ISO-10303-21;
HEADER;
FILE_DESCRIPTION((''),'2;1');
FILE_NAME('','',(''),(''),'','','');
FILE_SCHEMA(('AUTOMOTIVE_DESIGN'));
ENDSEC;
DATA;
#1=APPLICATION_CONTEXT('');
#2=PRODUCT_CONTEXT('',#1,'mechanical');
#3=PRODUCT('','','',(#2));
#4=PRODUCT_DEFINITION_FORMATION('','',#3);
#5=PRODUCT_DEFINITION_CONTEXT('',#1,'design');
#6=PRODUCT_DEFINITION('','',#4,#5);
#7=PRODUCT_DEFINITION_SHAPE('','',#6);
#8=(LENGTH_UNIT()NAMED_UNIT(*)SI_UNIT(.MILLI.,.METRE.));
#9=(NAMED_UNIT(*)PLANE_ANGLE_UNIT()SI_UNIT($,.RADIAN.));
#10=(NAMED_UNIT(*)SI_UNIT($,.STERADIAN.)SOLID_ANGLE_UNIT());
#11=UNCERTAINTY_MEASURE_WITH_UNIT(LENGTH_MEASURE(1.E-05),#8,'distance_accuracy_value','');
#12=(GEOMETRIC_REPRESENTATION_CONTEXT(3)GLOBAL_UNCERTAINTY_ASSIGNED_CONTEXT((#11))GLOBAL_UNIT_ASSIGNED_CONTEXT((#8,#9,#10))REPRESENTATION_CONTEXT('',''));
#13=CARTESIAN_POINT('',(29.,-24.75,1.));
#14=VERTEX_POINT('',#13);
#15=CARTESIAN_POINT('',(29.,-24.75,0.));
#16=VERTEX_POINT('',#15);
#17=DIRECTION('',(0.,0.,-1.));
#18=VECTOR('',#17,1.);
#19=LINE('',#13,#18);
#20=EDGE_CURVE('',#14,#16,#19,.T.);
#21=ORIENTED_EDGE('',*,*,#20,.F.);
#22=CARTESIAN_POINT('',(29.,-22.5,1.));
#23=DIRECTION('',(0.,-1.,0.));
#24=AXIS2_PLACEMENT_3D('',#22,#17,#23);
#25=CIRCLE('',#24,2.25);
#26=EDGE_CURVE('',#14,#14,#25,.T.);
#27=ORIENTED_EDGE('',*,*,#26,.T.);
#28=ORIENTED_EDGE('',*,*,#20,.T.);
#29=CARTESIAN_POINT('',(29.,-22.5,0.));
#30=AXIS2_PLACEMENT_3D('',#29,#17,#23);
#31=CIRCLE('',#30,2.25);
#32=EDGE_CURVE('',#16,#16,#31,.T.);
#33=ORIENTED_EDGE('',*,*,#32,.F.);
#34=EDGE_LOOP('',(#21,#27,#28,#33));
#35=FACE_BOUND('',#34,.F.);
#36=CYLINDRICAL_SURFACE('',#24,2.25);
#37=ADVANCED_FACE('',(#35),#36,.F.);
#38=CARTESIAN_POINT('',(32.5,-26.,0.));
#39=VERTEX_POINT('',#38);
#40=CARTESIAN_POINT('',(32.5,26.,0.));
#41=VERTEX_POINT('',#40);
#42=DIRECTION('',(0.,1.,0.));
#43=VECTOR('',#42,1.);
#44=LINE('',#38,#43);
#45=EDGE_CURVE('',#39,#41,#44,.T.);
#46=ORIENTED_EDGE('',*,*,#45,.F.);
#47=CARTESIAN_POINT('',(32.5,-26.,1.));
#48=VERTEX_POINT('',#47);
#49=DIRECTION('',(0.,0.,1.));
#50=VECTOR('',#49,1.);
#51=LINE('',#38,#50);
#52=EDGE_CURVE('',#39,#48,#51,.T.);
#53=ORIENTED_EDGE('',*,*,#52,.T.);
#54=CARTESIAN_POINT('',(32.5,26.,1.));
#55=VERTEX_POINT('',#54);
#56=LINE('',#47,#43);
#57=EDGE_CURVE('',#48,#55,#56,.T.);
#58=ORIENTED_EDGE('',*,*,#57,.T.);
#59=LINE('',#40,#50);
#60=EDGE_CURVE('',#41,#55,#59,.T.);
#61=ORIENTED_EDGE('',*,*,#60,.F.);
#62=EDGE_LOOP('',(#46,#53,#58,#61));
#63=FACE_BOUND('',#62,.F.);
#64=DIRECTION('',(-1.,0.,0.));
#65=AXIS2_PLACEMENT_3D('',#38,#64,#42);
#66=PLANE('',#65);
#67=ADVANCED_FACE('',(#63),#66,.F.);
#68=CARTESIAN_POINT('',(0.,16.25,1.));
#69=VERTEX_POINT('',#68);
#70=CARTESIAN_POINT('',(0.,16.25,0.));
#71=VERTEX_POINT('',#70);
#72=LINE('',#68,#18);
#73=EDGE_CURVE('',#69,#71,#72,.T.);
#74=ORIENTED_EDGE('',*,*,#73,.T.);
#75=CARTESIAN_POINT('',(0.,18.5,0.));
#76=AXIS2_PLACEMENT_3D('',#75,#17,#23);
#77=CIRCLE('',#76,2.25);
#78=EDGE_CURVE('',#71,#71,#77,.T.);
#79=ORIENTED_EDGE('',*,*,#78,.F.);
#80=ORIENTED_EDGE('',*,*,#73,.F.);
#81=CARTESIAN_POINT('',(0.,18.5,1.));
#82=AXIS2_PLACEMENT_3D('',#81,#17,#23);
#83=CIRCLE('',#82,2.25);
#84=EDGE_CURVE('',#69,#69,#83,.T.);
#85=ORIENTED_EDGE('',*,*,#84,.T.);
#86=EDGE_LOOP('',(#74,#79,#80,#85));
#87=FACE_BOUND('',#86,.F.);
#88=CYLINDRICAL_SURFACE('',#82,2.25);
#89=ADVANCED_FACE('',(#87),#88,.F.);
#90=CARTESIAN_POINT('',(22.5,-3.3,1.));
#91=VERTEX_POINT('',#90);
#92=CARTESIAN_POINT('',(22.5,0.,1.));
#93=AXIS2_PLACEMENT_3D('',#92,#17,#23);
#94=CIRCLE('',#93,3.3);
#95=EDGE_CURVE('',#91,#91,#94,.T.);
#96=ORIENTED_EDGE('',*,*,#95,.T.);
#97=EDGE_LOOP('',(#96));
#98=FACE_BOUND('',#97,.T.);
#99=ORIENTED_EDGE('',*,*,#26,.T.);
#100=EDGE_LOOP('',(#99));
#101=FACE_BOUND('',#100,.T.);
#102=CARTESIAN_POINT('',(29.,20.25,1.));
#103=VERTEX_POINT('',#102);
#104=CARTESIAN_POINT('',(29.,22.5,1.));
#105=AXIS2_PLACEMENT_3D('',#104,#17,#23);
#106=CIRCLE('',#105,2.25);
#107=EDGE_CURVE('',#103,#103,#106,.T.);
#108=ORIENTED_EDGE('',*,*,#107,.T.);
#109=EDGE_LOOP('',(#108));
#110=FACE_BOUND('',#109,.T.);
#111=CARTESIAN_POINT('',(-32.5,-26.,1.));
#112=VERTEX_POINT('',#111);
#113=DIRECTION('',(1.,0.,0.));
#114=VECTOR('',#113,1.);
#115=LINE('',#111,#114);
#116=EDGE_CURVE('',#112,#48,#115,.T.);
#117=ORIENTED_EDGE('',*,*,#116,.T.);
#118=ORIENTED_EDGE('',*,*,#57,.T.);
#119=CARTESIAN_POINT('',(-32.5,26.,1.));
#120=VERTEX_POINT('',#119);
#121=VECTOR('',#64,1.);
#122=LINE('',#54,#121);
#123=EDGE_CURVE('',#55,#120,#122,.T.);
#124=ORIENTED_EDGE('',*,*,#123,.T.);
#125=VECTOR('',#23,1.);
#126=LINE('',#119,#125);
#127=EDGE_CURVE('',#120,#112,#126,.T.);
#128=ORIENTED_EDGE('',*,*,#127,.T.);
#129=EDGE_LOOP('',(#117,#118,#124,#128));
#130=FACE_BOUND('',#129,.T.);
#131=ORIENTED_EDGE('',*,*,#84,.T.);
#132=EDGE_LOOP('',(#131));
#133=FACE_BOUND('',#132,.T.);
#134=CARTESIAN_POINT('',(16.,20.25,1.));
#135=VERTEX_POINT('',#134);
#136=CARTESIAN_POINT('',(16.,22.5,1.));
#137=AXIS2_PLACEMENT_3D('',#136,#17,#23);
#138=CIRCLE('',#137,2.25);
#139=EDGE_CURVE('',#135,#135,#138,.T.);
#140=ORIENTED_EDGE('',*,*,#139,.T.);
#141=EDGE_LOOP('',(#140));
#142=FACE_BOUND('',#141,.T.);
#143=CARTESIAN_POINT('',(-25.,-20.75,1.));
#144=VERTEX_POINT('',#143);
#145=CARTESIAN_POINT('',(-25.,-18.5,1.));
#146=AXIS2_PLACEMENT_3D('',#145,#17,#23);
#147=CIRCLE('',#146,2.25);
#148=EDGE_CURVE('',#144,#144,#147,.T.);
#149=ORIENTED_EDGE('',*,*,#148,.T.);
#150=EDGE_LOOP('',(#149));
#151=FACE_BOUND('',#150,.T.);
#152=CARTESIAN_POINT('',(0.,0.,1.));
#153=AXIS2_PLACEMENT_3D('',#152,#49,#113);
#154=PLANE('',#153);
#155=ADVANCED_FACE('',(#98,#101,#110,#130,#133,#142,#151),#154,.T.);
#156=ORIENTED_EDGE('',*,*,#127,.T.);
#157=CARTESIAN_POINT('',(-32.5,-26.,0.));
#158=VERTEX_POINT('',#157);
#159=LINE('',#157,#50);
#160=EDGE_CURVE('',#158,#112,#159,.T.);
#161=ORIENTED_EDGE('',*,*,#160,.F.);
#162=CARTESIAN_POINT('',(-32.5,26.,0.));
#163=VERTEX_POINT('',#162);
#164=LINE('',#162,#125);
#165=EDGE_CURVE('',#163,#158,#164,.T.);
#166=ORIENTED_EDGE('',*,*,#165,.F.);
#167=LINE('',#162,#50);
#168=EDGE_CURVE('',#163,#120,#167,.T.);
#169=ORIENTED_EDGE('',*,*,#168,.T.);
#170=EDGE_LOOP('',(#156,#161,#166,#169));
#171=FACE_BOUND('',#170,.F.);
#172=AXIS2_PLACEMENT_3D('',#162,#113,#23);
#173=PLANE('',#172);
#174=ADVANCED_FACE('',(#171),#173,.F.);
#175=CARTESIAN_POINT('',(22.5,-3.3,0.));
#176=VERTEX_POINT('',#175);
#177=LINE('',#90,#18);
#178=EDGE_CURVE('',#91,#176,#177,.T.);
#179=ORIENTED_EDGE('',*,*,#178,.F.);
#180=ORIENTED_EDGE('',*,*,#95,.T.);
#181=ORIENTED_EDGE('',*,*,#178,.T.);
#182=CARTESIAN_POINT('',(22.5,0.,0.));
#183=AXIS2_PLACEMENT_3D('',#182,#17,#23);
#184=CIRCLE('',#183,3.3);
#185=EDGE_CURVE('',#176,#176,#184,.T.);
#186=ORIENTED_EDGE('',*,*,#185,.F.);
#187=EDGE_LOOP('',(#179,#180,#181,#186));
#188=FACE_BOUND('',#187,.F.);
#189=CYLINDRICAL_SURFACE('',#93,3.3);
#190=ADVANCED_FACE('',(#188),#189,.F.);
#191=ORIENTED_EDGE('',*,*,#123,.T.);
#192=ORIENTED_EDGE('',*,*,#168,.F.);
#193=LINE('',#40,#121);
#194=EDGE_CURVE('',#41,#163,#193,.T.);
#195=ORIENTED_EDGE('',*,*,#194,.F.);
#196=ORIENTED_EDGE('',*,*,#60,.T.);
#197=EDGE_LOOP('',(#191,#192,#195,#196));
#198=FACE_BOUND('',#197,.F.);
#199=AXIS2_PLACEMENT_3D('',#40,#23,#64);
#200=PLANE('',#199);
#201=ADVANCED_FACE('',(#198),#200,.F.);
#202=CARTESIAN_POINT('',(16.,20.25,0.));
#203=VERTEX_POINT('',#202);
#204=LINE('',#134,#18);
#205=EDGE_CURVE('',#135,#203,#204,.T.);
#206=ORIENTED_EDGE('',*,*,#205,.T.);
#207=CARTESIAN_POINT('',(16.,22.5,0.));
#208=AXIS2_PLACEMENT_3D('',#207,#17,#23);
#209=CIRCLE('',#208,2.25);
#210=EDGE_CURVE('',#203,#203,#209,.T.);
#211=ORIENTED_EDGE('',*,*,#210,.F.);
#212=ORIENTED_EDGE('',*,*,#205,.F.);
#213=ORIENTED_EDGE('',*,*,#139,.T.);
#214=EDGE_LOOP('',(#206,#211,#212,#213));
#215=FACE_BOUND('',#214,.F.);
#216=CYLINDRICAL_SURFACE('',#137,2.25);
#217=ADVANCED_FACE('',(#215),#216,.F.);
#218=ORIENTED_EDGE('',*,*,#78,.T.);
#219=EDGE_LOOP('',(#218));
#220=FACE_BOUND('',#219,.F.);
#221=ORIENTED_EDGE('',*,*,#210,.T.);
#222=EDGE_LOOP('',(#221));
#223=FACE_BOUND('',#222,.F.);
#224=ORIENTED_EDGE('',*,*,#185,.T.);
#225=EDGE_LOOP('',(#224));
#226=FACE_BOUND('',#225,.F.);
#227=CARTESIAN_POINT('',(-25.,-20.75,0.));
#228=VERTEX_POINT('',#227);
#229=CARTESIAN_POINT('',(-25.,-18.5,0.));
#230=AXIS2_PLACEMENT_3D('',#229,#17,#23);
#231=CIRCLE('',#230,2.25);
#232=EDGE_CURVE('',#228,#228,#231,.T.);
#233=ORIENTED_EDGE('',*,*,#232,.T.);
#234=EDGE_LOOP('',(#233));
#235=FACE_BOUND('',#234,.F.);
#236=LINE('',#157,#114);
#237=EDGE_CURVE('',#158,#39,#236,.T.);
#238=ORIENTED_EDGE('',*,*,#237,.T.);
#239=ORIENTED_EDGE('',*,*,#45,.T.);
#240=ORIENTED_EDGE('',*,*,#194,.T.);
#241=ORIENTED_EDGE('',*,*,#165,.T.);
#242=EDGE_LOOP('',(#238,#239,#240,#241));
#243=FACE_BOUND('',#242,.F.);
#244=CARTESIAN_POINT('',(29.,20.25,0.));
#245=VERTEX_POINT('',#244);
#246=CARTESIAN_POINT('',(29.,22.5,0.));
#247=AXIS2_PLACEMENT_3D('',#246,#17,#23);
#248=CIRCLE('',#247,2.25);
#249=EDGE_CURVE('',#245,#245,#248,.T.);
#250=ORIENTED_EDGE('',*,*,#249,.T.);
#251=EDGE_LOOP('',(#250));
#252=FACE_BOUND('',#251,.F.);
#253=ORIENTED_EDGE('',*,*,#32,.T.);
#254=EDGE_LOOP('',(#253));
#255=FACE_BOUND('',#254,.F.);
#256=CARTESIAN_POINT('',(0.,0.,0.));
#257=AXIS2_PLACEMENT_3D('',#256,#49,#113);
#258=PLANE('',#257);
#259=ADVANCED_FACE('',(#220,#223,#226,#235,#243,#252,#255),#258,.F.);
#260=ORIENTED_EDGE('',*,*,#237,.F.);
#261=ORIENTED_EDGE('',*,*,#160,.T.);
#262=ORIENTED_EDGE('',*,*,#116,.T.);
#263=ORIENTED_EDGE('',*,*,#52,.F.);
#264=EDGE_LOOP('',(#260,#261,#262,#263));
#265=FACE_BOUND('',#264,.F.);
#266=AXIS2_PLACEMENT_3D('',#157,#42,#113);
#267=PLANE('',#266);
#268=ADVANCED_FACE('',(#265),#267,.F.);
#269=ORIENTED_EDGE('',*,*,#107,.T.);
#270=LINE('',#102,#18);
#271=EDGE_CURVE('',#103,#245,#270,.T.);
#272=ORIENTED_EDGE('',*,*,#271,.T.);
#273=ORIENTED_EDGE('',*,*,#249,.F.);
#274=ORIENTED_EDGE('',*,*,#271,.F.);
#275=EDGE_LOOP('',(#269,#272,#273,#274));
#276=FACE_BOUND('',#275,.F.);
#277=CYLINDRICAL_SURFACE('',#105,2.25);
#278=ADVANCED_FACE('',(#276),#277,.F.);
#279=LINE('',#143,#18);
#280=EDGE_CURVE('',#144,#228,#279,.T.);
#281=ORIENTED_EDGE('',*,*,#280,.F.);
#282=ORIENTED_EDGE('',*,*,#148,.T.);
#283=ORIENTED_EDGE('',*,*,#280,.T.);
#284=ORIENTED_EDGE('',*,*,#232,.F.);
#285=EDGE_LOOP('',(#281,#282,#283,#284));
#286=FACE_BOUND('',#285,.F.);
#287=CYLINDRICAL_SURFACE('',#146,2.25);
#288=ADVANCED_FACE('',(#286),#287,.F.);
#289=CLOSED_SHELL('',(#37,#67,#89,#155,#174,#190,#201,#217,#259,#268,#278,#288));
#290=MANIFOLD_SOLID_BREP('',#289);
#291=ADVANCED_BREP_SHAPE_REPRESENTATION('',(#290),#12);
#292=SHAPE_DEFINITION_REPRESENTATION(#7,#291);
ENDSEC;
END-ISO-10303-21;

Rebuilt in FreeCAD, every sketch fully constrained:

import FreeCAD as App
import Part
import Sketcher
Q = App.Units.Quantity


def add_polygon(sketch, points):
    """Adds a closed chain of lines whose ends are joined by coincident constraints."""
    first, n = sketch.GeometryCount, len(points)
    for a, b in zip(points, points[1:] + points[:1]):
        sketch.addGeometry(Part.LineSegment(App.Vector(*a, 0), App.Vector(*b, 0)), False)
    for i in range(n):
        sketch.addConstraint(Sketcher.Constraint("Coincident", first + i, 2, first + (i + 1) % n, 1))

doc = App.newDocument("Part")
body = doc.addObject("PartDesign::Body", "Body")

# Sketch on XY plane
sketch1 = body.newObject("Sketcher::SketchObject", "Sketch")
sketch1.AttachmentSupport = (doc.getObject("XY_Plane"), [""])
sketch1.MapMode = "FlatFace"
add_polygon(sketch1, [(-32, 26), (-32, -26), (32, -26), (32, 26)])  # lines 0-3
sketch1.addConstraint(Sketcher.Constraint("Vertical", 0))
sketch1.addConstraint(Sketcher.Constraint("Horizontal", 1))
sketch1.addConstraint(Sketcher.Constraint("Vertical", 2))
sketch1.addConstraint(Sketcher.Constraint("Horizontal", 3))
sketch1.addConstraint(Sketcher.Constraint("Symmetric", 0, 2, 2, 2, -1, 1))
sketch1.addConstraint(Sketcher.Constraint("DistanceX", 1, 1, 1, 2, Q("65 mm")))
sketch1.addConstraint(Sketcher.Constraint("DistanceY", 0, 2, 0, 1, Q("52 mm")))
pad1 = body.newObject("PartDesign::Pad", "Pad")
pad1.Profile = sketch1
pad1.Length = 1

# Sketch on XY plane
sketch2 = body.newObject("Sketcher::SketchObject", "Sketch001")
sketch2.AttachmentSupport = (doc.getObject("XY_Plane"), [""])
sketch2.MapMode = "FlatFace"
sketch2.AttachmentOffset = App.Placement(App.Vector(0, 0, 1), App.Rotation())
sketch2.addGeometry(Part.Circle(App.Vector(16, 22.5, 0), App.Vector(0, 0, 1), 2.2), False)
sketch2.addGeometry(Part.Circle(App.Vector(29, 22.5, 0), App.Vector(0, 0, 1), 2.2), False)
sketch2.addGeometry(Part.Circle(App.Vector(29, -22.5, 0), App.Vector(0, 0, 1), 2.2), False)
sketch2.addConstraint(Sketcher.Constraint("Equal", 0, 1))
sketch2.addConstraint(Sketcher.Constraint("Equal", 1, 2))
sketch2.addConstraint(Sketcher.Constraint("Symmetric", 1, 3, 2, 3, -1))
sketch2.addConstraint(Sketcher.Constraint("Horizontal", 0, 3, 1, 3))
sketch2.addConstraint(Sketcher.Constraint("Diameter", 0, Q("4.5 mm")))
sketch2.addConstraint(Sketcher.Constraint("DistanceX", -1, 1, 0, 3, Q("16 mm")))
sketch2.addConstraint(Sketcher.Constraint("DistanceX", -1, 1, 1, 3, Q("29 mm")))
sketch2.addConstraint(Sketcher.Constraint("DistanceY", 2, 3, 1, 3, Q("45 mm")))
doc.recompute()
hole = body.newObject("PartDesign::Hole", "Hole")
hole.Profile = sketch2
hole.ThreadType = "None"
hole.Diameter = 4.5
hole.DepthType = "Dimension"
hole.Depth = 8
hole.DrillPoint = "Angled"
hole.DrillPointAngle = 118

# Sketch on XY plane
sketch3 = body.newObject("Sketcher::SketchObject", "Sketch002")
sketch3.AttachmentSupport = (doc.getObject("XY_Plane"), [""])
sketch3.MapMode = "FlatFace"
sketch3.AttachmentOffset = App.Placement(App.Vector(0, 0, 1), App.Rotation())
sketch3.addGeometry(Part.Circle(App.Vector(0, 18.5, 0), App.Vector(0, 0, 1), 2.2), False)
sketch3.addGeometry(Part.Circle(App.Vector(-25, -18.5, 0), App.Vector(0, 0, 1), 2.2), False)
sketch3.addConstraint(Sketcher.Constraint("Equal", 0, 1))
sketch3.addConstraint(Sketcher.Constraint("PointOnObject", 0, 3, -2))
sketch3.addConstraint(Sketcher.Constraint("Diameter", 0, Q("4.5 mm")))
sketch3.addConstraint(Sketcher.Constraint("DistanceX", 1, 3, -1, 1, Q("25 mm")))
sketch3.addConstraint(Sketcher.Constraint("DistanceY", 1, 3, 0, 3, Q("37 mm")))
sketch3.addConstraint(Sketcher.Constraint("DistanceY", -1, 1, 0, 3, Q("18.5 mm")))
doc.recompute()
hole2 = body.newObject("PartDesign::Hole", "Hole001")
hole2.Profile = sketch3
hole2.ThreadType = "None"
hole2.Diameter = 4.5
hole2.DepthType = "Dimension"
hole2.Depth = 8
hole2.DrillPoint = "Angled"
hole2.DrillPointAngle = 118

# Sketch on XY plane
sketch4 = body.newObject("Sketcher::SketchObject", "Sketch003")
sketch4.AttachmentSupport = (doc.getObject("XY_Plane"), [""])
sketch4.MapMode = "FlatFace"
sketch4.AttachmentOffset = App.Placement(App.Vector(0, 0, 1), App.Rotation())
sketch4.addGeometry(Part.Circle(App.Vector(22.5, 0, 0), App.Vector(0, 0, 1), 3.3), False)
sketch4.addConstraint(Sketcher.Constraint("PointOnObject", 0, 3, -1))
sketch4.addConstraint(Sketcher.Constraint("Diameter", 0, Q("6.6 mm")))
sketch4.addConstraint(Sketcher.Constraint("DistanceX", -1, 1, 0, 3, Q("22.5 mm")))
doc.recompute()
hole3 = body.newObject("PartDesign::Hole", "Hole002")
hole3.Profile = sketch4
hole3.ThreadType = "None"
hole3.Diameter = 6.6
hole3.DepthType = "Dimension"
hole3.Depth = 8
hole3.DrillPoint = "Angled"
hole3.DrillPointAngle = 118

doc.recompute()
